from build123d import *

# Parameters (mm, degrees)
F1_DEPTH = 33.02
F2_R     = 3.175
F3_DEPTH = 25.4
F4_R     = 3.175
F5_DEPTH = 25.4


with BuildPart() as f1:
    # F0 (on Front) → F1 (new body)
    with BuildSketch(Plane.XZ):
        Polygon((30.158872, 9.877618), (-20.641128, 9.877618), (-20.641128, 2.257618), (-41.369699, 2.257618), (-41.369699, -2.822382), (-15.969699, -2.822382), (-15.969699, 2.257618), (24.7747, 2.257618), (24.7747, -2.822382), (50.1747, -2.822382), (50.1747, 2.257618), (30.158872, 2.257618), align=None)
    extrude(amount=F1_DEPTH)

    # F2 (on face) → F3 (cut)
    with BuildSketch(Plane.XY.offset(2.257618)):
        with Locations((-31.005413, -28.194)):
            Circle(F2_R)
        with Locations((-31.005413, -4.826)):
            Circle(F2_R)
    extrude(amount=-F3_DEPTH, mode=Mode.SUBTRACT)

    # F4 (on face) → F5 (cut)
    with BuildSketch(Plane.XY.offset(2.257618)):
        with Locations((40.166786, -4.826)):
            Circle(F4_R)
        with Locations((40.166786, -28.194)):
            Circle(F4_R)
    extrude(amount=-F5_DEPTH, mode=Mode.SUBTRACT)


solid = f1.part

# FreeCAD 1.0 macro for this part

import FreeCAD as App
import Part
import Sketcher

V = App.Vector
Q = App.Units.Quantity

doc = App.newDocument("Part")
body = doc.addObject("PartDesign::Body", "Body")

# Sketch on XZ plane
sketch1 = doc.addObject("Sketcher::SketchObject", "Sketch")
body.addObject(sketch1)
sketch1.AttachmentSupport = (doc.XZ_Plane, [""])
sketch1.MapMode = "FlatFace"
sketch1.addGeometry([
    Part.LineSegment(V(30.158872, 9.877618, 0), V(-20.641128, 9.877618, 0)),  # 0
    Part.LineSegment(V(-20.641128, 9.877618, 0), V(-20.641128, 2.257618, 0)),  # 1
    Part.LineSegment(V(-20.641128, 2.257618, 0), V(-41.369699, 2.257618, 0)),  # 2
    Part.LineSegment(V(-41.369699, 2.257618, 0), V(-41.369699, -2.822382, 0)),  # 3
    Part.LineSegment(V(-41.369699, -2.822382, 0), V(-15.969699, -2.822382, 0)),  # 4
    Part.LineSegment(V(-15.969699, -2.822382, 0), V(-15.969699, 2.257618, 0)),  # 5
    Part.LineSegment(V(-15.969699, 2.257618, 0), V(24.7747, 2.257618, 0)),  # 6
    Part.LineSegment(V(24.7747, 2.257618, 0), V(24.7747, -2.822382, 0)),  # 7
    Part.LineSegment(V(24.7747, -2.822382, 0), V(50.1747, -2.822382, 0)),  # 8
    Part.LineSegment(V(50.1747, -2.822382, 0), V(50.1747, 2.257618, 0)),  # 9
    Part.LineSegment(V(50.1747, 2.257618, 0), V(30.158872, 2.257618, 0)),  # 10
    Part.LineSegment(V(30.158872, 2.257618, 0), V(30.158872, 9.877618, 0)),  # 11
], False)
sketch1.addConstraint([
    Sketcher.Constraint("Coincident", 0, 2, 1, 1),
    Sketcher.Constraint("Coincident", 1, 2, 2, 1),
    Sketcher.Constraint("Coincident", 2, 2, 3, 1),
    Sketcher.Constraint("Coincident", 3, 2, 4, 1),
    Sketcher.Constraint("Coincident", 4, 2, 5, 1),
    Sketcher.Constraint("Coincident", 5, 2, 6, 1),
    Sketcher.Constraint("Coincident", 6, 2, 7, 1),
    Sketcher.Constraint("Coincident", 7, 2, 8, 1),
    Sketcher.Constraint("Coincident", 8, 2, 9, 1),
    Sketcher.Constraint("Coincident", 9, 2, 10, 1),
    Sketcher.Constraint("Coincident", 10, 2, 11, 1),
    Sketcher.Constraint("Coincident", 11, 2, 0, 1),
    Sketcher.Constraint("Horizontal", 0),
    Sketcher.Constraint("Vertical", 1),
    Sketcher.Constraint("Horizontal", 2),
    Sketcher.Constraint("Vertical", 3),
    Sketcher.Constraint("Horizontal", 4),
    Sketcher.Constraint("Vertical", 5),
    Sketcher.Constraint("Horizontal", 6),
    Sketcher.Constraint("Vertical", 7),
    Sketcher.Constraint("Horizontal", 8),
    Sketcher.Constraint("Vertical", 9),
    Sketcher.Constraint("Horizontal", 10),
    Sketcher.Constraint("Vertical", 11),
    Sketcher.Constraint("Horizontal", 2, 2, 5, 2),
    Sketcher.Constraint("Horizontal", 4, 2, 7, 2),
    Sketcher.Constraint("Horizontal", 6, 2, 9, 2),
    Sketcher.Constraint("Equal", 4, 8),
    Sketcher.Constraint("DistanceX", 0, 2, 0, 1, Q("2 in")),
    Sketcher.Constraint("DistanceX", 4, 1, 4, 2, Q("1 in")),
    Sketcher.Constraint("DistanceY", 1, 2, 1, 1, Q("0.3 in")),
    Sketcher.Constraint("DistanceY", 3, 2, 3, 1, Q("0.2 in")),
    Sketcher.Constraint("DistanceX", 6, 1, 6, 2, Q("40.744399 mm")),
    Sketcher.Constraint("DistanceX", 2, 2, 2, 1, Q("20.728571 mm")),
    Sketcher.Constraint("DistanceX", 2, 2, -1, 1, Q("41.369699 mm")),
    Sketcher.Constraint("DistanceY", -1, 1, 0, 2, Q("9.877618 mm")),
])
pad1 = doc.addObject("PartDesign::Pad", "Pad")
body.addObject(pad1)
pad1.Profile = sketch1
pad1.Length = Q("1.3 in")

# Sketch on XY plane
sketch2 = doc.addObject("Sketcher::SketchObject", "Sketch001")
body.addObject(sketch2)
sketch2.AttachmentSupport = (doc.XY_Plane, [""])
sketch2.MapMode = "FlatFace"
sketch2.AttachmentOffset = App.Placement(V(0, 0, 2.257618), App.Rotation())
sketch2.addGeometry([
    Part.Circle(V(-31.005413, -28.194, 0), V(0, 0, 1), 3.175),
    Part.Circle(V(-31.005413, -4.826, 0), V(0, 0, 1), 3.175),
], False)
sketch2.addConstraint([
    Sketcher.Constraint("Equal", 0, 1),
    Sketcher.Constraint("Vertical", 0, 3, 1, 3),
    Sketcher.Constraint("Diameter", 0, Q("0.25 in")),
    Sketcher.Constraint("DistanceY", 0, 3, -1, 1, Q("1.11 in")),
    Sketcher.Constraint("DistanceY", 1, 3, -1, 1, Q("0.19 in")),
    Sketcher.Constraint("DistanceX", 0, 3, -1, 1, Q("31.005413 mm")),
])
pocket1 = doc.addObject("PartDesign::Pocket", "Pocket")
body.addObject(pocket1)
pocket1.Profile = sketch2
pocket1.Length = Q("1 in")

# Sketch on XY plane
sketch3 = doc.addObject("Sketcher::SketchObject", "Sketch002")
body.addObject(sketch3)
sketch3.AttachmentSupport = (doc.XY_Plane, [""])
sketch3.MapMode = "FlatFace"
sketch3.AttachmentOffset = App.Placement(V(0, 0, 2.257618), App.Rotation())
sketch3.addGeometry([
    Part.Circle(V(40.166786, -4.826, 0), V(0, 0, 1), 3.175),
    Part.Circle(V(40.166786, -28.194, 0), V(0, 0, 1), 3.175),
], False)
sketch3.addConstraint([
    Sketcher.Constraint("Equal", 0, 1),
    Sketcher.Constraint("Vertical", 0, 3, 1, 3),
    Sketcher.Constraint("Diameter", 0, Q("0.25 in")),
    Sketcher.Constraint("DistanceY", 0, 3, -1, 1, Q("0.19 in")),
    Sketcher.Constraint("DistanceY", 1, 3, -1, 1, Q("1.11 in")),
    Sketcher.Constraint("DistanceX", -1, 1, 0, 3, Q("40.166786 mm")),
])
pocket2 = doc.addObject("PartDesign::Pocket", "Pocket001")
body.addObject(pocket2)
pocket2.Profile = sketch3
pocket2.Length = Q("1 in")

doc.recompute()
